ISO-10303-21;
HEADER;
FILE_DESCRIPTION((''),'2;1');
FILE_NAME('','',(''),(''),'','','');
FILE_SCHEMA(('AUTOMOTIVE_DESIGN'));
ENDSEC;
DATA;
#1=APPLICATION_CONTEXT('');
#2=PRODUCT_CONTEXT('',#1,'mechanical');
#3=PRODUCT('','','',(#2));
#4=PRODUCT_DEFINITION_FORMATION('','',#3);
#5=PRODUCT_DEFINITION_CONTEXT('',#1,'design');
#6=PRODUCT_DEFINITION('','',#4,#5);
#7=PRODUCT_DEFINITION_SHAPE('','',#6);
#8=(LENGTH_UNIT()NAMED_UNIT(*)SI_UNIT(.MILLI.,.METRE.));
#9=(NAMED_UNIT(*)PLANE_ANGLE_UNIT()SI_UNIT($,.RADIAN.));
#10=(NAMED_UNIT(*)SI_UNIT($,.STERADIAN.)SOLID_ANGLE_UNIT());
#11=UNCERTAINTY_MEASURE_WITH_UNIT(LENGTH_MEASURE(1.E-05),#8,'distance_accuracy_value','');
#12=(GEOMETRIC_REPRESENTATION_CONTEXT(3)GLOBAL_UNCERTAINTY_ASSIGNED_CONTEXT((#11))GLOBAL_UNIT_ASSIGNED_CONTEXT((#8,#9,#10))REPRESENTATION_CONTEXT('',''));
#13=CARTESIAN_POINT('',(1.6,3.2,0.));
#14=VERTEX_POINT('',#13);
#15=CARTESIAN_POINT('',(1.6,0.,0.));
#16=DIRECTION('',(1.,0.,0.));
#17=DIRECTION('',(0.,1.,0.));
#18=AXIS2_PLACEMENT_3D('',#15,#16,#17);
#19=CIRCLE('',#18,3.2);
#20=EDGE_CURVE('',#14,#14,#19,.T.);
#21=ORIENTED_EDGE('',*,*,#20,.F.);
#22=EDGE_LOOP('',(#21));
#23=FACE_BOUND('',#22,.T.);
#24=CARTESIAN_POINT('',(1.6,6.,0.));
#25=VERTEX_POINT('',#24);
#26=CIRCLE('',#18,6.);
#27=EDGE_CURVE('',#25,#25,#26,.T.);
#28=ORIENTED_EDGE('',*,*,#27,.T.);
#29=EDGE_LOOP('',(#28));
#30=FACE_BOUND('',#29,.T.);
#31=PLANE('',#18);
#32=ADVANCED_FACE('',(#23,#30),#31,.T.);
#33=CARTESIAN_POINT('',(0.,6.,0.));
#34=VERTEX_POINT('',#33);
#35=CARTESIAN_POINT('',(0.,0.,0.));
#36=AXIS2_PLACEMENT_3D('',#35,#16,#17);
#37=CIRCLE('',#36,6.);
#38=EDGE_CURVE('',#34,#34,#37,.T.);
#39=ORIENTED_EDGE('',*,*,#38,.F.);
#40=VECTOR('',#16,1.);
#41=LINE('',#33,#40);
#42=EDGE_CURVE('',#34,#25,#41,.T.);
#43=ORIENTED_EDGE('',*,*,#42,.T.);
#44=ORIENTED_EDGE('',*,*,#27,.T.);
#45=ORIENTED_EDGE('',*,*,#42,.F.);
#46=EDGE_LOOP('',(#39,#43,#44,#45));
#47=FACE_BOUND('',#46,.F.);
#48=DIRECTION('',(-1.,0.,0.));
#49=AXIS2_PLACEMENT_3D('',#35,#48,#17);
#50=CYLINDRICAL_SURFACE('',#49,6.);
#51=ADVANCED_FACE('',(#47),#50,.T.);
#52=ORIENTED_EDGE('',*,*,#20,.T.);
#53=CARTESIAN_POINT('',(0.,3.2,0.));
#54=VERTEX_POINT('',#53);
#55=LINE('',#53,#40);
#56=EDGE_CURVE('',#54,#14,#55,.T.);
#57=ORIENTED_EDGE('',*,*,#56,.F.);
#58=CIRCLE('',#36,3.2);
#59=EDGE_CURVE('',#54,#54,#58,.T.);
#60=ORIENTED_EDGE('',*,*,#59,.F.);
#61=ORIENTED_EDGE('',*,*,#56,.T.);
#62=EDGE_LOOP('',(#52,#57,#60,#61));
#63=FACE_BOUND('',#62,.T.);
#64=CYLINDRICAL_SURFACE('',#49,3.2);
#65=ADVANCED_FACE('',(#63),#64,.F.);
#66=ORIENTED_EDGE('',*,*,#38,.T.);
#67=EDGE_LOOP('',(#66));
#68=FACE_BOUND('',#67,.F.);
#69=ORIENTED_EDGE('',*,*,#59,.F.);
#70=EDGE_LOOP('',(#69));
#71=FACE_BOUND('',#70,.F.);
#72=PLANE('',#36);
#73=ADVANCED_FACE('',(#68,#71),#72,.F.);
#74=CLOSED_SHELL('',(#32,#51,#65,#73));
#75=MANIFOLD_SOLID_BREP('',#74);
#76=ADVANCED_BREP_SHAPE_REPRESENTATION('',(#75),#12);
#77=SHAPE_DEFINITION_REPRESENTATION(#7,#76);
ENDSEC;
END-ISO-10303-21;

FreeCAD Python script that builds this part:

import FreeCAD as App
import Part
import Sketcher
from FreeCAD import Vector
Q = App.Units.Quantity

doc = App.newDocument("Part")
params = doc.addObject("Spreadsheet::Sheet", "Params")
for row, (alias, value) in enumerate([
    ("sketch1_diameter", "12 mm"),
    ("sketch1_diameter2", "6.4 mm"),
    ("pad1_length", "1.6 mm"),
], start=1):
    params.set(f"A{row}", alias)
    params.set(f"B{row}", "=" + value)
    params.setAlias(f"B{row}", alias)

body = doc.addObject("PartDesign::Body", "Body")

sketch1 = doc.addObject("Sketcher::SketchObject", "Sketch")
body.addObject(sketch1)
sketch1.AttachmentSupport = (doc.YZ_Plane, [""])
sketch1.MapMode = "FlatFace"
sketch1.addGeometry([
    Part.Circle(Vector(0, 0, 0), Vector(0, 0, 1), 6),
    Part.Circle(Vector(0, 0, 0), Vector(0, 0, 1), 3.2),
], False)
sketch1.addConstraint([
    Sketcher.Constraint("Coincident", 0, 3, -1, 1),
    Sketcher.Constraint("Coincident", 1, 3, -1, 1),
    Sketcher.Constraint("Diameter", 0, Q("12 mm")),
    Sketcher.Constraint("Diameter", 1, Q("6.4 mm")),
])
sketch1.setExpression("Constraints[2]", "Params.sketch1_diameter")
sketch1.setExpression("Constraints[3]", "Params.sketch1_diameter2")
pad1 = doc.addObject("PartDesign::Pad", "Pad")
body.addObject(pad1)
pad1.Profile = sketch1
pad1.setExpression("Length", "Params.pad1_length")

doc.recompute()
